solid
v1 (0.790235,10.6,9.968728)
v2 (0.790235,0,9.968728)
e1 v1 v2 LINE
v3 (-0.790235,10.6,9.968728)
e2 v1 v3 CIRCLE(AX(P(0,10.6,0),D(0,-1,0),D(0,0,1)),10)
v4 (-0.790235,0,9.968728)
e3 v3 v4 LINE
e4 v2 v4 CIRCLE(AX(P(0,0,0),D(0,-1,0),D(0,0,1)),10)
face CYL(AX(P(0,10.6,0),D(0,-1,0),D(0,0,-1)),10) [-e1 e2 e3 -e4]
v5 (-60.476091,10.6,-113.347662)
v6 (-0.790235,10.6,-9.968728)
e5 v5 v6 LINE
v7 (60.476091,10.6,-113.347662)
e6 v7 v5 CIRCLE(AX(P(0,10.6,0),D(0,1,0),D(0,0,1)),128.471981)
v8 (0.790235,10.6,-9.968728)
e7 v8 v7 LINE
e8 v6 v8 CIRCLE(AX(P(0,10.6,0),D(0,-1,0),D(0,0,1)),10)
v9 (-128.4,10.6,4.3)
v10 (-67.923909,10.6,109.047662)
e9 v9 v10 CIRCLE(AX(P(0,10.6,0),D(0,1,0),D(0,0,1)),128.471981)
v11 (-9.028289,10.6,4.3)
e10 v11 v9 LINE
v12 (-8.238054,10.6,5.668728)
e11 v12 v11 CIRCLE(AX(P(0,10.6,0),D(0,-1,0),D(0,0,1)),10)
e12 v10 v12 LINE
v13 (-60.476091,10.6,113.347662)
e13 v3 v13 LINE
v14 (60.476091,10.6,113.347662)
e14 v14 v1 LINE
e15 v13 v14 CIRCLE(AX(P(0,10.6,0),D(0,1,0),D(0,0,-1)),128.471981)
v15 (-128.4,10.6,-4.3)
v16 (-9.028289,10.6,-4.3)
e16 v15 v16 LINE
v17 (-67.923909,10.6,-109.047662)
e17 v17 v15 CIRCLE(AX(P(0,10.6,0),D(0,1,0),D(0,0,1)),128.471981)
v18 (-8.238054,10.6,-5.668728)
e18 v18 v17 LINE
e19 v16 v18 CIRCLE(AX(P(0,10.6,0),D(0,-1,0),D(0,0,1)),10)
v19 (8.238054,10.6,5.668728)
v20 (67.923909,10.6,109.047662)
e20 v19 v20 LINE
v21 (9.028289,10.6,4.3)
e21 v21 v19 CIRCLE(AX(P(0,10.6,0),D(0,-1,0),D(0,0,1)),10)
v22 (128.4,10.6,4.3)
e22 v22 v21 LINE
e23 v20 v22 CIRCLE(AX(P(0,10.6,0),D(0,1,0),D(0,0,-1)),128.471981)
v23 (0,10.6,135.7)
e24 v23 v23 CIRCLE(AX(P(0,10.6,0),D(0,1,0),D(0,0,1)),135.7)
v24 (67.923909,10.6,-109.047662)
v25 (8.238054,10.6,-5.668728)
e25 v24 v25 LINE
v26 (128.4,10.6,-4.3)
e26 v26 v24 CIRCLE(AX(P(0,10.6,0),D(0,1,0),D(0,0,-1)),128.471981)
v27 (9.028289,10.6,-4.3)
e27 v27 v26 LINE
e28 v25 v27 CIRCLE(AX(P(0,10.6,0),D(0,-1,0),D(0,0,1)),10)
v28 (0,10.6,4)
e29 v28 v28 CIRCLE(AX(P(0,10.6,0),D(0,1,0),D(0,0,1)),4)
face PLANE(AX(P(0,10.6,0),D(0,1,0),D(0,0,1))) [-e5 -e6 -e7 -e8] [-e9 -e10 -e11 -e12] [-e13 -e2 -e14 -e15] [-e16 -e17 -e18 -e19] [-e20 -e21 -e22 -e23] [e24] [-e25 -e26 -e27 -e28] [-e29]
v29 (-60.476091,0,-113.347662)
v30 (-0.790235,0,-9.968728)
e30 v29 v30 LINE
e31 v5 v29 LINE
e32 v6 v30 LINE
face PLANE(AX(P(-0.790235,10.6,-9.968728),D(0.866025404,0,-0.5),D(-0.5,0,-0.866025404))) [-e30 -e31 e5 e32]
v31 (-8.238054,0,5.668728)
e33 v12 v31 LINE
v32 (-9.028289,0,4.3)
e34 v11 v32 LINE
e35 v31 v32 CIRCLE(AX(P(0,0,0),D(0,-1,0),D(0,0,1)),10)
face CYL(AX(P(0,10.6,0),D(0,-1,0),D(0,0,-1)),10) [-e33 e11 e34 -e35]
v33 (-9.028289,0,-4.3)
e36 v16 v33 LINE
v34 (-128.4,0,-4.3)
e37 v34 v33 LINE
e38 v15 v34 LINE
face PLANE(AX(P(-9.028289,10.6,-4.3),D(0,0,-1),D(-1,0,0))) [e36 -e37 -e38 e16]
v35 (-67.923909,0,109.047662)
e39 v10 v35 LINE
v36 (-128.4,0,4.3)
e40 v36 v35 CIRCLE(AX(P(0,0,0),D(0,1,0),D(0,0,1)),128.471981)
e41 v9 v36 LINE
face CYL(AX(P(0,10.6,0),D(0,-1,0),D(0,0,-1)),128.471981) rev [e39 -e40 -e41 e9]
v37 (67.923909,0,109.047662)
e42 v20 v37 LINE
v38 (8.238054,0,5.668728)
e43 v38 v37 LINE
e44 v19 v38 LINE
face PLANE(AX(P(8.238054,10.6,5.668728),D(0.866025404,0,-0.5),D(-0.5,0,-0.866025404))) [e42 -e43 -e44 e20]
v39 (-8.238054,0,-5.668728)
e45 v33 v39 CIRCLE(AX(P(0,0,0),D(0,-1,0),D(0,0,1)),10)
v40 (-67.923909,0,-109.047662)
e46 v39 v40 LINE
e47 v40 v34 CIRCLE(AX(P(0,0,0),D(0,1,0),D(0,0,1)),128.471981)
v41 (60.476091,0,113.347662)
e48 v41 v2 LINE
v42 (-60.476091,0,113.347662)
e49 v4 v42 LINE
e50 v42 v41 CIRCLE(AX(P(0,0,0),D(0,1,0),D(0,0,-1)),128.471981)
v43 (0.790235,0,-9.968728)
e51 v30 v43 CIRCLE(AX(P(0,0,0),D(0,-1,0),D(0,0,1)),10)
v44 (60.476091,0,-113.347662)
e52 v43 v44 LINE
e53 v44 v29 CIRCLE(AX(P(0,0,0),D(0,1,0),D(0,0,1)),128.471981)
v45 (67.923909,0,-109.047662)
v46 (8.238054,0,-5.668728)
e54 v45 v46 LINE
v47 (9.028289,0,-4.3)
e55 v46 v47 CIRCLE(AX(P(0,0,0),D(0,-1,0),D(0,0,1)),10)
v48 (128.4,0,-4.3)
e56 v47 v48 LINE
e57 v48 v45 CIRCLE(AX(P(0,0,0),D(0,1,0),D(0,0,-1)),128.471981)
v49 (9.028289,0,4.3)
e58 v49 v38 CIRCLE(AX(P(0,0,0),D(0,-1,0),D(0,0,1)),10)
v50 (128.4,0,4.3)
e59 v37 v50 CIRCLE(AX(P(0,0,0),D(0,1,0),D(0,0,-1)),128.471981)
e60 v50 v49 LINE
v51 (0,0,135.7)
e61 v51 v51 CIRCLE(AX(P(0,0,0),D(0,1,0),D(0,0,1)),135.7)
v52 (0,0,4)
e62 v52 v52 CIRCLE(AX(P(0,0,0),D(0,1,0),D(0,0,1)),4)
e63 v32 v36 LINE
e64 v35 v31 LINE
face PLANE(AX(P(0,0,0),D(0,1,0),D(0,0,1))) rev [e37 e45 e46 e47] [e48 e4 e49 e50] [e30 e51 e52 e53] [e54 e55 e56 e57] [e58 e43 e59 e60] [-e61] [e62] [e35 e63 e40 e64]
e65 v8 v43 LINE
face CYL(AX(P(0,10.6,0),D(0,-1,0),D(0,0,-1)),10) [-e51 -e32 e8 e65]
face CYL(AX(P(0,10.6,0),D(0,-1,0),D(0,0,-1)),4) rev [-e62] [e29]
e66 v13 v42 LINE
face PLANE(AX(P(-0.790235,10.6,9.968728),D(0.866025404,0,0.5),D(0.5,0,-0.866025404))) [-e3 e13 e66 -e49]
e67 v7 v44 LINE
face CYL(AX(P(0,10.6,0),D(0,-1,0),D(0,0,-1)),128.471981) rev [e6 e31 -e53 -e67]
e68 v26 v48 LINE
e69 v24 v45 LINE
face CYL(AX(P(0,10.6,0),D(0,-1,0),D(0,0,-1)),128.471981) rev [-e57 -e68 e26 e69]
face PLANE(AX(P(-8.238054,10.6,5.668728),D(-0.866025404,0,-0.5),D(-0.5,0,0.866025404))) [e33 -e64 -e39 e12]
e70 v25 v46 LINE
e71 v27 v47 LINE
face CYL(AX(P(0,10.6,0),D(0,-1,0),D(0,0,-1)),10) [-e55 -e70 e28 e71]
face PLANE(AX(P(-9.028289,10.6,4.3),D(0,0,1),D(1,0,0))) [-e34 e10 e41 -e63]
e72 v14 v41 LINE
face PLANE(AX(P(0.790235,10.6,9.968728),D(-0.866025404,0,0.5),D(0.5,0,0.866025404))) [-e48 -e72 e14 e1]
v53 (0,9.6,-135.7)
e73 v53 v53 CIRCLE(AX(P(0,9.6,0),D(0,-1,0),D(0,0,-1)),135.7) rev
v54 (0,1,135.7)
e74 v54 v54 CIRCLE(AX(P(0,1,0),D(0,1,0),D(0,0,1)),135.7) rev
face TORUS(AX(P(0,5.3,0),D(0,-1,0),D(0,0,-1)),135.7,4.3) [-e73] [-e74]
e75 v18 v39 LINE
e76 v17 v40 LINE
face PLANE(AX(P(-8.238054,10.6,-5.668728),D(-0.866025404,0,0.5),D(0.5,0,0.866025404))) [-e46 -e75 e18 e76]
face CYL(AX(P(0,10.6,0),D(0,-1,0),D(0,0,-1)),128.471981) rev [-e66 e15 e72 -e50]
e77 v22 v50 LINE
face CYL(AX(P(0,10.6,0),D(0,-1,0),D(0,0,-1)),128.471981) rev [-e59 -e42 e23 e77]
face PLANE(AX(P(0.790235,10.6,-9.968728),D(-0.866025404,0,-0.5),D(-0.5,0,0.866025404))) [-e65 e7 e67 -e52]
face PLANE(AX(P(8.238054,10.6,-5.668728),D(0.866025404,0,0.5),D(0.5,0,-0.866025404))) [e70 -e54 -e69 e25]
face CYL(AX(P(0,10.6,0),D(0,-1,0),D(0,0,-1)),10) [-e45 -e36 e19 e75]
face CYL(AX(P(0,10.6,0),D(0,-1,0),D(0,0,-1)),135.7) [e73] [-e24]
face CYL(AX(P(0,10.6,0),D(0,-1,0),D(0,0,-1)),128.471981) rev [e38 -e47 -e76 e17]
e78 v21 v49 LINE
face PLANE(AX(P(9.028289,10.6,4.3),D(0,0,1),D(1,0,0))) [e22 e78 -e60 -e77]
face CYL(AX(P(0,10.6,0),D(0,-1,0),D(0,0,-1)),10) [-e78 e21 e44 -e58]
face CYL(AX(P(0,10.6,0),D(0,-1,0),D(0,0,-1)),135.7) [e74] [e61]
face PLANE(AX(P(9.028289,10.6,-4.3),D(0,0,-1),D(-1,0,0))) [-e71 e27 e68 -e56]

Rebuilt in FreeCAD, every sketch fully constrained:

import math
import FreeCAD as App
import Part
import Sketcher
from FreeCAD import Vector
Q = App.Units.Quantity

doc = App.newDocument("Part")
body = doc.addObject("PartDesign::Body", "Body")

# Sketch on XZ plane
sketch1 = body.newObject("Sketcher::SketchObject", "Sketch")
sketch1.AttachmentSupport = (doc.getObject("XZ_Plane"), [""])
sketch1.MapMode = "FlatFace"
sketch1.addGeometry([
    Part.Circle(Vector(0, 0, 0), Vector(0, 0, 1), 135.7),  # 0
    Part.ArcOfCircle(Part.Circle(Vector(0, 0, 0), Vector(0, 0, 1), 10), math.radians(-154.53244), math.radians(-145.46756)),  # 1
    Part.LineSegment(Vector(-9.028289, -4.3, 0), Vector(-128.4, -4.3, 0)),  # 2
    Part.ArcOfCircle(Part.Circle(Vector(0, 0, 0), Vector(0, 0, 1), 128.471981), math.radians(-178.081933), math.radians(-121.918067)),  # 3
    Part.LineSegment(Vector(-67.923909, -109.047662, 0), Vector(-8.238054, -5.668728, 0)),  # 4
    Part.ArcOfCircle(Part.Circle(Vector(0, 0, 0), Vector(0, 0, 1), 10), math.radians(-94.53244), math.radians(-85.46756)),  # 5
    Part.LineSegment(Vector(-0.790235, -9.968728, 0), Vector(-60.476091, -113.347662, 0)),  # 6
    Part.ArcOfCircle(Part.Circle(Vector(0, 0, 0), Vector(0, 0, 1), 128.471981), math.radians(-118.081933), math.radians(-61.918067)),  # 7
    Part.LineSegment(Vector(60.476091, -113.347662, 0), Vector(0.790235, -9.968728, 0)),  # 8
    Part.LineSegment(Vector(-128.4, 4.3, 0), Vector(-9.028289, 4.3, 0)),  # 9
    Part.ArcOfCircle(Part.Circle(Vector(0, 0, 0), Vector(0, 0, 1), 10), math.radians(145.46756), math.radians(154.53244)),  # 10
    Part.LineSegment(Vector(-8.238054, 5.668728, 0), Vector(-67.923909, 109.047662, 0)),  # 11
    Part.ArcOfCircle(Part.Circle(Vector(0, 0, 0), Vector(0, 0, 1), 128.471981), math.radians(121.918067), math.radians(178.081933)),  # 12
    Part.Circle(Vector(0, 0, 0), Vector(0, 0, 1), 4),  # 13
    Part.ArcOfCircle(Part.Circle(Vector(0, 0, 0), Vector(0, 0, 1), 10), math.radians(-34.53244), math.radians(-25.46756)),  # 14
    Part.LineSegment(Vector(8.238054, -5.668728, 0), Vector(67.923909, -109.047662, 0)),  # 15
    Part.ArcOfCircle(Part.Circle(Vector(0, 0, 0), Vector(0, 0, 1), 128.471981), math.radians(-58.081933), math.radians(-1.918067)),  # 16
    Part.LineSegment(Vector(128.4, -4.3, 0), Vector(9.028289, -4.3, 0)),  # 17
    Part.ArcOfCircle(Part.Circle(Vector(0, 0, 0), Vector(0, 0, 1), 10), math.radians(85.46756), math.radians(94.53244)),  # 18
    Part.LineSegment(Vector(0.790235, 9.968728, 0), Vector(60.476091, 113.347662, 0)),  # 19
    Part.ArcOfCircle(Part.Circle(Vector(0, 0, 0), Vector(0, 0, 1), 128.471981), math.radians(61.918067), math.radians(118.081933)),  # 20
    Part.LineSegment(Vector(-60.476091, 113.347662, 0), Vector(-0.790235, 9.968728, 0)),  # 21
    Part.ArcOfCircle(Part.Circle(Vector(0, 0, 0), Vector(0, 0, 1), 10), math.radians(25.46756), math.radians(34.53244)),  # 22
    Part.LineSegment(Vector(9.028289, 4.3, 0), Vector(128.4, 4.3, 0)),  # 23
    Part.ArcOfCircle(Part.Circle(Vector(0, 0, 0), Vector(0, 0, 1), 128.471981), math.radians(1.918067), math.radians(58.081933)),  # 24
    Part.LineSegment(Vector(67.923909, 109.047662, 0), Vector(8.238054, 5.668728, 0)),  # 25
], False)
sketch1.addConstraint([
    Sketcher.Constraint("Coincident", 1, 1, 2, 1),
    Sketcher.Constraint("Coincident", 2, 2, 3, 1),
    Sketcher.Constraint("Coincident", 3, 2, 4, 1),
    Sketcher.Constraint("Coincident", 4, 2, 1, 2),
    Sketcher.Constraint("Coincident", 5, 1, 6, 1),
    Sketcher.Constraint("Coincident", 6, 2, 7, 1),
    Sketcher.Constraint("Coincident", 7, 2, 8, 1),
    Sketcher.Constraint("Coincident", 8, 2, 5, 2),
    Sketcher.Constraint("Coincident", 9, 2, 10, 2),
    Sketcher.Constraint("Coincident", 10, 1, 11, 1),
    Sketcher.Constraint("Coincident", 11, 2, 12, 1),
    Sketcher.Constraint("Coincident", 12, 2, 9, 1),
    Sketcher.Constraint("Coincident", 14, 1, 15, 1),
    Sketcher.Constraint("Coincident", 15, 2, 16, 1),
    Sketcher.Constraint("Coincident", 16, 2, 17, 1),
    Sketcher.Constraint("Coincident", 17, 2, 14, 2),
    Sketcher.Constraint("Coincident", 18, 1, 19, 1),
    Sketcher.Constraint("Coincident", 19, 2, 20, 1),
    Sketcher.Constraint("Coincident", 20, 2, 21, 1),
    Sketcher.Constraint("Coincident", 21, 2, 18, 2),
    Sketcher.Constraint("Coincident", 22, 1, 23, 1),
    Sketcher.Constraint("Coincident", 23, 2, 24, 1),
    Sketcher.Constraint("Coincident", 24, 2, 25, 1),
    Sketcher.Constraint("Coincident", 25, 2, 22, 2),
    Sketcher.Constraint("Horizontal", 2),
    Sketcher.Constraint("Horizontal", 9),
    Sketcher.Constraint("Horizontal", 17),
    Sketcher.Constraint("Horizontal", 23),
    Sketcher.Constraint("Coincident", 0, 3, -1, 1),
    Sketcher.Constraint("Coincident", 1, 3, -1, 1),
    Sketcher.Constraint("Coincident", 3, 3, -1, 1),
    Sketcher.Constraint("Coincident", 5, 3, -1, 1),
    Sketcher.Constraint("Coincident", 7, 3, -1, 1),
    Sketcher.Constraint("Coincident", 10, 3, -1, 1),
    Sketcher.Constraint("Coincident", 12, 3, -1, 1),
    Sketcher.Constraint("Coincident", 13, 3, -1, 1),
    Sketcher.Constraint("Coincident", 14, 3, -1, 1),
    Sketcher.Constraint("Coincident", 16, 3, -1, 1),
    Sketcher.Constraint("Coincident", 18, 3, -1, 1),
    Sketcher.Constraint("Coincident", 20, 3, -1, 1),
    Sketcher.Constraint("Coincident", 22, 3, -1, 1),
    Sketcher.Constraint("Coincident", 24, 3, -1, 1),
    Sketcher.Constraint("Equal", 1, 5),
    Sketcher.Constraint("Equal", 3, 7),
    Sketcher.Constraint("Equal", 5, 10),
    Sketcher.Constraint("Equal", 7, 12),
    Sketcher.Constraint("Equal", 10, 14),
    Sketcher.Constraint("Equal", 12, 16),
    Sketcher.Constraint("Equal", 14, 18),
    Sketcher.Constraint("Equal", 16, 20),
    Sketcher.Constraint("Equal", 18, 22),
    Sketcher.Constraint("Equal", 20, 24),
    Sketcher.Constraint("Parallel", 4, 6),
    Sketcher.Constraint("Parallel", 8, 11),
    Sketcher.Constraint("Parallel", 11, 15),
    Sketcher.Constraint("Parallel", 6, 19),
    Sketcher.Constraint("Parallel", 15, 21),
    Sketcher.Constraint("Parallel", 19, 25),
    Sketcher.Constraint("Horizontal", 6, 2, 7, 2),
    Sketcher.Constraint("Horizontal", 5, 1, 8, 2),
    Sketcher.Constraint("Horizontal", 4, 2, 14, 1),
    Sketcher.Constraint("Horizontal", 2, 2, 16, 2),
    Sketcher.Constraint("Horizontal", 19, 2, 20, 2),
    Sketcher.Constraint("Horizontal", 12, 2, 22, 1),
    Sketcher.Constraint("Horizontal", 11, 2, 24, 2),
    Sketcher.Constraint("Vertical", 1, 1, 9, 2),
    Sketcher.Constraint("Vertical", 4, 2, 10, 1),
    Sketcher.Constraint("Vertical", 8, 2, 18, 1),
    Sketcher.Constraint("Equal", 4, 6),
    Sketcher.Constraint("Diameter", 13, 8.0),
    Sketcher.Constraint("Radius", 1, 10.0),
    Sketcher.Constraint("Diameter", 0, 271.4),
    Sketcher.Constraint("Angle", 4, Q("60 deg")),
    Sketcher.Constraint("DistanceY", 1, 1, -1, 1, 4.3),
    Sketcher.Constraint("DistanceX", 2, 2, -1, 1, 128.4),
    Sketcher.Constraint("DistanceY", 5, 1, 4, 2, 4.3),
])
pad1 = body.newObject("PartDesign::Pad", "Pad")
pad1.Profile = sketch1
pad1.Length = 10.6
pad1.Reversed = True

# Sketch on XY plane
sketch2 = body.newObject("Sketcher::SketchObject", "Sketch001")
sketch2.AttachmentSupport = (doc.getObject("XY_Plane"), [""])
sketch2.MapMode = "FlatFace"
sketch2.addGeometry(Part.Circle(Vector(135.7, 5.3, 0), Vector(0, 0, 1), 4.3), False)
sketch2.addConstraint([
    Sketcher.Constraint("Diameter", 0, 8.6),
    Sketcher.Constraint("DistanceX", -1, 1, 0, 3, 135.7),
    Sketcher.Constraint("DistanceY", -1, 1, 0, 3, 5.3),
])
groove = body.newObject("PartDesign::Groove", "Groove")
groove.Profile = sketch2
groove.ReferenceAxis = (sketch2, ["V_Axis"])
groove.Angle = 360

# Sketch on YZ plane
sketch3 = body.newObject("Sketcher::SketchObject", "Sketch002")
sketch3.AttachmentSupport = (doc.getObject("YZ_Plane"), [""])
sketch3.MapMode = "FlatFace"
sketch3.addGeometry(Part.Circle(Vector(5.3, -135.7, 0), Vector(0, 0, 1), 4.3), False)
sketch3.addConstraint([
    Sketcher.Constraint("Diameter", 0, 8.6),
    Sketcher.Constraint("DistanceX", -1, 1, 0, 3, 5.3),
    Sketcher.Constraint("DistanceY", 0, 3, -1, 1, 135.7),
])
revolution = body.newObject("PartDesign::Revolution", "Revolution")
revolution.Profile = sketch3
revolution.ReferenceAxis = (sketch3, ["H_Axis"])
revolution.Angle = 360

doc.recompute()
